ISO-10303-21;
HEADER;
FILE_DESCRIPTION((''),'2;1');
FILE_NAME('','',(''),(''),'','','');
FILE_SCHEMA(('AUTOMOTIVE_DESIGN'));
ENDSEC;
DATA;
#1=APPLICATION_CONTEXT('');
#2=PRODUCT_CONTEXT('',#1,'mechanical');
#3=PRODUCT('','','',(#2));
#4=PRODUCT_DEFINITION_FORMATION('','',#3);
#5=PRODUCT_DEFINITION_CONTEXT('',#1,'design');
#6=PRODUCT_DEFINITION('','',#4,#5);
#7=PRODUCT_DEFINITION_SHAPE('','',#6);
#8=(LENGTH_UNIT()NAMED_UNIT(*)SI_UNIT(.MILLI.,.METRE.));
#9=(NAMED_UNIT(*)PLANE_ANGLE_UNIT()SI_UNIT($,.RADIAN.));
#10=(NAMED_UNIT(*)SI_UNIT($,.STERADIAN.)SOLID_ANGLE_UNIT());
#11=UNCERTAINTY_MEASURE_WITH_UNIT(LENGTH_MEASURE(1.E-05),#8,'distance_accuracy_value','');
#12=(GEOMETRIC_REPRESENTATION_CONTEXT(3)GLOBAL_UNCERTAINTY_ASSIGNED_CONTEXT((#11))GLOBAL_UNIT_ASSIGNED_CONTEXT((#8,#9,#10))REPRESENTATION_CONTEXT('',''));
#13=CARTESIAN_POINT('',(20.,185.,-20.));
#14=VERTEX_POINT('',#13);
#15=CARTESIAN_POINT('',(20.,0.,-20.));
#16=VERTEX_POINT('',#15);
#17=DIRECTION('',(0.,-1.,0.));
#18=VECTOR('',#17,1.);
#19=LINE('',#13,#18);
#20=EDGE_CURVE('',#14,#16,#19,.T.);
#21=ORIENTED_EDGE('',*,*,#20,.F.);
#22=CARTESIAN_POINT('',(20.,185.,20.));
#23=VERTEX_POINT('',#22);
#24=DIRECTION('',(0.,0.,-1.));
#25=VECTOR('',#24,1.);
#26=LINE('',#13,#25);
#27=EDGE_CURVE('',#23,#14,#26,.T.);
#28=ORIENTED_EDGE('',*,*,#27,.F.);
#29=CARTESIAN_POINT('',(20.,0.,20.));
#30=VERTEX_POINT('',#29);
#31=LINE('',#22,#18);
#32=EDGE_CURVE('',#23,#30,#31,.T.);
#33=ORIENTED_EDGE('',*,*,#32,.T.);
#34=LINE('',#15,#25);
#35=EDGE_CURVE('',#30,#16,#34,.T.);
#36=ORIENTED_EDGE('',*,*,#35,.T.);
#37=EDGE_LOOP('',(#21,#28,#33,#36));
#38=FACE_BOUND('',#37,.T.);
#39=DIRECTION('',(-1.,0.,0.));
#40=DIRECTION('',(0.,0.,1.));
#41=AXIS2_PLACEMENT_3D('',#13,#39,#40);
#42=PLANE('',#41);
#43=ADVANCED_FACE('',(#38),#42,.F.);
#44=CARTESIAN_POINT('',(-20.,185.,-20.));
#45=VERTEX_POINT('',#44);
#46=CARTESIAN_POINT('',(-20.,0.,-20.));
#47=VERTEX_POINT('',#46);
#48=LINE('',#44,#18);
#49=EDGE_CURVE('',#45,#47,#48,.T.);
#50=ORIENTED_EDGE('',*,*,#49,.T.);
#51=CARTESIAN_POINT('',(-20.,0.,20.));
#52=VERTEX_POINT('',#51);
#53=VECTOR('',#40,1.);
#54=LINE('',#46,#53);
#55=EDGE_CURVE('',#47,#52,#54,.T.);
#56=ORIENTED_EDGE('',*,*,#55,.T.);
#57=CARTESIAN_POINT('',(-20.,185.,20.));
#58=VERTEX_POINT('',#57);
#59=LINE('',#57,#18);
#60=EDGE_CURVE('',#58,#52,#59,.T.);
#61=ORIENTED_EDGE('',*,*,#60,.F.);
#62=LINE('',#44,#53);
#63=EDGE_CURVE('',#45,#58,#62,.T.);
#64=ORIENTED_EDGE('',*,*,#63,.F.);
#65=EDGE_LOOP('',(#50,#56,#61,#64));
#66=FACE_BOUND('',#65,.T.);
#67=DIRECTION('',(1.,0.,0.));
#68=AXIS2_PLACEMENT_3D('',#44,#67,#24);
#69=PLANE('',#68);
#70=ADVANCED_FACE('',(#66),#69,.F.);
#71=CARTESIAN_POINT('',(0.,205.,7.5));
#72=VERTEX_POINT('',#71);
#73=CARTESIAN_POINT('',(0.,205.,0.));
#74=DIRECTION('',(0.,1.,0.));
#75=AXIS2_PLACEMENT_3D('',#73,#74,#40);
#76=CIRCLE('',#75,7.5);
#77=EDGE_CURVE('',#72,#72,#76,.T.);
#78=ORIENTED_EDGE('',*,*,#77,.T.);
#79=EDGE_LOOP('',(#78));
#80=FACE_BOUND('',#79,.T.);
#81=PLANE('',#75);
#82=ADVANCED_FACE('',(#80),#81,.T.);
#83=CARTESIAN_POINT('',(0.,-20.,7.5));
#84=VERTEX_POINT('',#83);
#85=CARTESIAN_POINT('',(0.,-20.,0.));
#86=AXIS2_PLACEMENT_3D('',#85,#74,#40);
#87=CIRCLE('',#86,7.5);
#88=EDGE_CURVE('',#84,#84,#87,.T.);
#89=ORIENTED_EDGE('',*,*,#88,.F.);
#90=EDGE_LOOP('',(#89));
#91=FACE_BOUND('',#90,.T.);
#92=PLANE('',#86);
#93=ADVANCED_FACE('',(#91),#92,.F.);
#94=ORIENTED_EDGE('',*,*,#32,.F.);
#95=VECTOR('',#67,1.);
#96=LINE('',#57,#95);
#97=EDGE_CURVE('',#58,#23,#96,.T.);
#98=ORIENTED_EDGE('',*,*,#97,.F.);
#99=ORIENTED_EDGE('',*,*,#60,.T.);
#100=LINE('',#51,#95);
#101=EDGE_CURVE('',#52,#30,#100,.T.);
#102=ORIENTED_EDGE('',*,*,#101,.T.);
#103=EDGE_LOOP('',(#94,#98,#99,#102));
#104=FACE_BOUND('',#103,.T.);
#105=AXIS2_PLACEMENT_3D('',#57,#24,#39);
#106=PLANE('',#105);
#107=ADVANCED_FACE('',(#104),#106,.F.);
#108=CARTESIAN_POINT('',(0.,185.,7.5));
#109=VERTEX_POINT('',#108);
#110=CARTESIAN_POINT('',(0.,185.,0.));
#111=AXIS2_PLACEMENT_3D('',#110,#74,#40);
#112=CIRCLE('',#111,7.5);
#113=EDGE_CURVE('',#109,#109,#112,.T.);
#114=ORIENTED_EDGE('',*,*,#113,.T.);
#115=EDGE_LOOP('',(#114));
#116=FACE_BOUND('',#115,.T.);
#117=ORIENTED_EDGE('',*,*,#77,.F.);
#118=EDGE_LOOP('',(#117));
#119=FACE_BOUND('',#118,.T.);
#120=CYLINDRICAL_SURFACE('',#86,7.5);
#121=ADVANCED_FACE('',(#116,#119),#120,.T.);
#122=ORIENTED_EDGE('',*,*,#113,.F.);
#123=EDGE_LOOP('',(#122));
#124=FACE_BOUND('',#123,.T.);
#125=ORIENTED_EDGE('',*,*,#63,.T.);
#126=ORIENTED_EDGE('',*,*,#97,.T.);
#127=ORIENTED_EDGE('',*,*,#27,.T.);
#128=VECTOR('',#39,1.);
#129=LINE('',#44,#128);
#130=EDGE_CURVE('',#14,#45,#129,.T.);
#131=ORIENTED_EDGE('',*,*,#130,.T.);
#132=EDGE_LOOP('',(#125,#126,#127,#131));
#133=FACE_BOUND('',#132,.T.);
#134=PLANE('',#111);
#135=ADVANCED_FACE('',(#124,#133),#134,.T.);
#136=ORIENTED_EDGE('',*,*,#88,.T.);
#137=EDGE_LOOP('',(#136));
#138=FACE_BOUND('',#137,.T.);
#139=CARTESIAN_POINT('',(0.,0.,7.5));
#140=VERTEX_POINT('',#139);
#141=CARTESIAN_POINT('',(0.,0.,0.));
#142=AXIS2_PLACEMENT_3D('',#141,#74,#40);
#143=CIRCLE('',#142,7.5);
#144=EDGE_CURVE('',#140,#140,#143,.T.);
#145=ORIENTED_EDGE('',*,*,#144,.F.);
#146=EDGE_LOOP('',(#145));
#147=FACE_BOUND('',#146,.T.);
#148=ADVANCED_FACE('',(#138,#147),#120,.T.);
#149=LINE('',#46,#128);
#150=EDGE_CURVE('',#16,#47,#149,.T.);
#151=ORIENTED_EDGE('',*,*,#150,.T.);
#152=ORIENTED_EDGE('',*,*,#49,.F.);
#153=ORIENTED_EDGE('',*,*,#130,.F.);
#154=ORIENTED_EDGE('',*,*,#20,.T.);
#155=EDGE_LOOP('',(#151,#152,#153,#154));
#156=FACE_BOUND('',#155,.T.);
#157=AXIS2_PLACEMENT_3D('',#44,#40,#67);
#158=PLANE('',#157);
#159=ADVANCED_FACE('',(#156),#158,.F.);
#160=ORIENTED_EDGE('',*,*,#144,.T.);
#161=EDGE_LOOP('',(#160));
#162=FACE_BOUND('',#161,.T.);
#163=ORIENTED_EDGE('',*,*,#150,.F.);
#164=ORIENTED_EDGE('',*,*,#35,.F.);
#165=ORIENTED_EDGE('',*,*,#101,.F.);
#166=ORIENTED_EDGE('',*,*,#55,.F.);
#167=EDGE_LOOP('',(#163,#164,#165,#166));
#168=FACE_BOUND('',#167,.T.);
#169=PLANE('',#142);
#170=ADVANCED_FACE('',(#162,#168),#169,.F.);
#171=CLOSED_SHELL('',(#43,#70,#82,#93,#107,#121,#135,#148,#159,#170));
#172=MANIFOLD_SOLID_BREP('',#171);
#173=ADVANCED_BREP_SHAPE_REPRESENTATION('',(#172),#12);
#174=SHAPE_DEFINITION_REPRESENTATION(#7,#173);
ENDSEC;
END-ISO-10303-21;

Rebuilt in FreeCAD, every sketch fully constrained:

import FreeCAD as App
import Part
import Sketcher
from FreeCAD import Vector
Q = App.Units.Quantity

doc = App.newDocument("Part")
params = doc.addObject("Spreadsheet::Sheet", "Params")
for row, (alias, value) in enumerate([
    ("sketch1_width", "40 mm"),
    ("pad1_length", "185 mm"),
    ("sketch2_diameter", "15 mm"),
    ("pad2_length", "20 mm"),
    ("pad2_length2", "205 mm"),
], start=1):
    params.set(f"A{row}", alias)
    params.set(f"B{row}", "=" + value)
    params.setAlias(f"B{row}", alias)

body = doc.addObject("PartDesign::Body", "Body")

sketch1 = body.newObject("Sketcher::SketchObject", "Sketch")
sketch1.AttachmentSupport = (doc.getObject("XZ_Plane"), [""])
sketch1.MapMode = "FlatFace"
sketch1.addGeometry(Part.LineSegment(Vector(-20, -20, 0), Vector(-20, 20, 0)), False)
sketch1.addGeometry(Part.LineSegment(Vector(-20, 20, 0), Vector(20, 20, 0)), False)
sketch1.addGeometry(Part.LineSegment(Vector(20, 20, 0), Vector(20, -20, 0)), False)
sketch1.addGeometry(Part.LineSegment(Vector(20, -20, 0), Vector(-20, -20, 0)), False)
sketch1.addConstraint(Sketcher.Constraint("Coincident", 0, 2, 1, 1))
sketch1.addConstraint(Sketcher.Constraint("Coincident", 1, 2, 2, 1))
sketch1.addConstraint(Sketcher.Constraint("Coincident", 2, 2, 3, 1))
sketch1.addConstraint(Sketcher.Constraint("Coincident", 3, 2, 0, 1))
sketch1.addConstraint(Sketcher.Constraint("Vertical", 0))
sketch1.addConstraint(Sketcher.Constraint("Horizontal", 1))
sketch1.addConstraint(Sketcher.Constraint("Vertical", 2))
sketch1.addConstraint(Sketcher.Constraint("Horizontal", 3))
sketch1.addConstraint(Sketcher.Constraint("Symmetric", 0, 2, 2, 2, -1, 1))
sketch1.addConstraint(Sketcher.Constraint("Equal", 3, 0))
sketch1.addConstraint(Sketcher.Constraint("DistanceX", 1, 1, 1, 2, Q("40 mm")))
sketch1.setExpression("Constraints[10]", "Params.sketch1_width")
pad1 = body.newObject("PartDesign::Pad", "Pad")
pad1.Profile = sketch1
pad1.setExpression("Length", "Params.pad1_length")
pad1.Reversed = True

sketch2 = body.newObject("Sketcher::SketchObject", "Sketch001")
sketch2.AttachmentSupport = (doc.getObject("XZ_Plane"), [""])
sketch2.MapMode = "FlatFace"
sketch2.AttachmentOffset = App.Placement(Vector(0, 0, -185), App.Rotation())
sketch2.addGeometry(Part.Circle(Vector(0, 0, 0), Vector(0, 0, 1), 8), False)
sketch2.addConstraint(Sketcher.Constraint("Coincident", 0, 3, -1, 1))
sketch2.addConstraint(Sketcher.Constraint("Diameter", 0, Q("15 mm")))
sketch2.setExpression("Constraints[1]", "Params.sketch2_diameter")
pad2 = body.newObject("PartDesign::Pad", "Pad001")
pad2.Profile = sketch2
pad2.Type = "TwoLengths"
pad2.setExpression("Length", "Params.pad2_length")
pad2.setExpression("Length2", "Params.pad2_length2")
pad2.Reversed = True

doc.recompute()
